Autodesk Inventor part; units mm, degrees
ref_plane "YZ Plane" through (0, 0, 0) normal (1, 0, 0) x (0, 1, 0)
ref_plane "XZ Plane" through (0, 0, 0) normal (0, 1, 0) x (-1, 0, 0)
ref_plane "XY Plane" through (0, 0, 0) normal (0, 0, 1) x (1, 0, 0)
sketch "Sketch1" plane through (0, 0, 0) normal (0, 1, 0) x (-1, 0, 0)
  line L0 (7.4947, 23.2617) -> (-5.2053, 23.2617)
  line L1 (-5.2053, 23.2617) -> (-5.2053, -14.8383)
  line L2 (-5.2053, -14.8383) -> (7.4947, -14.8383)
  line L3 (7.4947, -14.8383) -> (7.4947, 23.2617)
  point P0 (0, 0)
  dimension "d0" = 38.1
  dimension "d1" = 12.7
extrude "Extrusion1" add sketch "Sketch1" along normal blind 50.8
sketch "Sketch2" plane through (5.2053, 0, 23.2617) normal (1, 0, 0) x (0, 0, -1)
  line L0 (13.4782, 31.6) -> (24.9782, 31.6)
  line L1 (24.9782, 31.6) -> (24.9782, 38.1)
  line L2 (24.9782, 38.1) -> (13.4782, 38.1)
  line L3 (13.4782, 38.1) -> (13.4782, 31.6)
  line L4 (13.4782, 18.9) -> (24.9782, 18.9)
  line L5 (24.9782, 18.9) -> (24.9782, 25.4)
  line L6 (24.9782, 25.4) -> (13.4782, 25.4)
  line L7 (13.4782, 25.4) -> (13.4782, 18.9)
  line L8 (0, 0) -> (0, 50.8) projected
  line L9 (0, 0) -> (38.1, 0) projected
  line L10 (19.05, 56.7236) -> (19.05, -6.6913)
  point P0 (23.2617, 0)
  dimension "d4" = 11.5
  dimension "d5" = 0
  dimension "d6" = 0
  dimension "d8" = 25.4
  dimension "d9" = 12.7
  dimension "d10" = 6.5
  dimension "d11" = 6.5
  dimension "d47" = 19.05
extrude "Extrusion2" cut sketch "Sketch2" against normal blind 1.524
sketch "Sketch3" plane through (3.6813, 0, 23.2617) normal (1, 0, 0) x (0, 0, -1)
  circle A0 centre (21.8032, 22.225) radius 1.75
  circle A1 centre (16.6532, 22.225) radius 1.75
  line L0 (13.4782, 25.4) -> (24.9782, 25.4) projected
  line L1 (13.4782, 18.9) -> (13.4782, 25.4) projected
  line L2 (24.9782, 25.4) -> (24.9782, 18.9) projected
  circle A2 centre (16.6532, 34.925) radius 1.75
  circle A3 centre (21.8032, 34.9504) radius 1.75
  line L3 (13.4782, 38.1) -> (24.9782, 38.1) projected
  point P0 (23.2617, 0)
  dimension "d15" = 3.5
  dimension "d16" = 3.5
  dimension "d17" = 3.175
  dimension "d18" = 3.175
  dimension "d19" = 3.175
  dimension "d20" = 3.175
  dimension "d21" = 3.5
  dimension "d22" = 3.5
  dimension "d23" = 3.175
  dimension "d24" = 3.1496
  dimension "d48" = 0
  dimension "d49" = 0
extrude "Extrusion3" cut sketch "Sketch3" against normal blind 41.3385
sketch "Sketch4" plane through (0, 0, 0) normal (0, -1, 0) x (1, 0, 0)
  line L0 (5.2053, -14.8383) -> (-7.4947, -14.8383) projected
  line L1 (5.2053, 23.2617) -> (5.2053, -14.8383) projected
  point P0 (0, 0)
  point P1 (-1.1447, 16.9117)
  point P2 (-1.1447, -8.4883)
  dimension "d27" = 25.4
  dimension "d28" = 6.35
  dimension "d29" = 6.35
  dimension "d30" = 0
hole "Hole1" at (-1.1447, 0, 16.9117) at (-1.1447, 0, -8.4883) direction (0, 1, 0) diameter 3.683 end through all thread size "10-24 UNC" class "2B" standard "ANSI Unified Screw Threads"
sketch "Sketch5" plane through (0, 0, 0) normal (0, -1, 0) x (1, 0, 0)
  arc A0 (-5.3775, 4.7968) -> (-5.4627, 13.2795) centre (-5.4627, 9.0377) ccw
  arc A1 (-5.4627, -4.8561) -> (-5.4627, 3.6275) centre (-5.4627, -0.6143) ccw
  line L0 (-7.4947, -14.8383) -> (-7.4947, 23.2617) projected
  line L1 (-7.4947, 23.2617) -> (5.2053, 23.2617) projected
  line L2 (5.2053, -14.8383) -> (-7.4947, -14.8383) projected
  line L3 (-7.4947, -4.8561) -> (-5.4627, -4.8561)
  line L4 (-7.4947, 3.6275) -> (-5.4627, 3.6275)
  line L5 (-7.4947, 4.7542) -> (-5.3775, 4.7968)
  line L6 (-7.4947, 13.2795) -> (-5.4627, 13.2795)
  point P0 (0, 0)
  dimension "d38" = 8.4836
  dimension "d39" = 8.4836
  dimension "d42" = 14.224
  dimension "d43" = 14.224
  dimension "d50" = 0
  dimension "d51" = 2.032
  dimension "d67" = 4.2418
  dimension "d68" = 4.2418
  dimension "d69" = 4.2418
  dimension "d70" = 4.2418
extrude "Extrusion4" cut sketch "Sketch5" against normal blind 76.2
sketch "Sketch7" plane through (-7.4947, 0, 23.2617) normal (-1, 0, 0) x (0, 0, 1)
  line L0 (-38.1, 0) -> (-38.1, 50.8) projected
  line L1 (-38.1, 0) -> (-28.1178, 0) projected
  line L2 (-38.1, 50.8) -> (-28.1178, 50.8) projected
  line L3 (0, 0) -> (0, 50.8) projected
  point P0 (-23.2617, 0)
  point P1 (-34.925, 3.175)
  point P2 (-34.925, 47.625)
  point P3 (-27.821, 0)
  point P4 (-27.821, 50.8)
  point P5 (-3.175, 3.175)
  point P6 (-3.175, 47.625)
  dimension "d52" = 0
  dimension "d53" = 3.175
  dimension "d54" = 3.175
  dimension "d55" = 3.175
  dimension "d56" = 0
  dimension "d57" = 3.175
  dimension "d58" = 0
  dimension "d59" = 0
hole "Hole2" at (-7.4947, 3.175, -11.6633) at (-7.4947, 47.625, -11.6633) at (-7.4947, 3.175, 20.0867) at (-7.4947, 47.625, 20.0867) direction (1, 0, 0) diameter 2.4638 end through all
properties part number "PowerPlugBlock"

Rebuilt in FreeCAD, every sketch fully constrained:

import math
import FreeCAD as App
import Part
import Sketcher
from FreeCAD import Vector
Q = App.Units.Quantity

doc = App.newDocument("Part")
params = doc.addObject("Spreadsheet::Sheet", "Params")
for row, (alias, value) in enumerate([
    ("sketch1_width", "0.5 in"),
    ("sketch1_height", "1.5 in"),
    ("pad1_length", "2 in"),
    ("pocket1_length", "0.06 in"),
    ("pocket2_length", "1.6275 in"),
    ("sketch4_diameter", "0.145 in"),
    ("hole_diameter", "0.145 in"),
    ("sketch5_radius", "0.167 in"),
    ("sketch5_width", "0.08 in"),
    ("pocket3_length", "3 in"),
    ("sketch6_diameter", "0.097 in"),
    ("hole2_diameter", "0.097 in"),
], start=1):
    params.set(f"A{row}", alias)
    params.set(f"B{row}", "=" + value)
    params.setAlias(f"B{row}", alias)

body = doc.addObject("PartDesign::Body", "Body")

sketch1 = body.newObject("Sketcher::SketchObject", "Sketch")
sketch1.AttachmentSupport = (doc.getObject("XZ_Plane"), [""])
sketch1.MapMode = "FlatFace"
sketch1.addGeometry([
    Part.LineSegment(Vector(-7, -15, 0), Vector(-7, 23, 0)),
    Part.LineSegment(Vector(-7, 23, 0), Vector(5, 23, 0)),
    Part.LineSegment(Vector(5, 23, 0), Vector(5, -15, 0)),
    Part.LineSegment(Vector(5, -15, 0), Vector(-7, -15, 0)),
], False)
sketch1.addConstraint([
    Sketcher.Constraint("Coincident", 0, 2, 1, 1),
    Sketcher.Constraint("Coincident", 1, 2, 2, 1),
    Sketcher.Constraint("Coincident", 2, 2, 3, 1),
    Sketcher.Constraint("Coincident", 3, 2, 0, 1),
    Sketcher.Constraint("Vertical", 0),
    Sketcher.Constraint("Horizontal", 1),
    Sketcher.Constraint("Vertical", 2),
    Sketcher.Constraint("Horizontal", 3),
    Sketcher.Constraint("DistanceX", 1, 1, 1, 2, Q("0.5 in")),
    Sketcher.Constraint("DistanceY", 0, 1, 0, 2, Q("1.5 in")),
    Sketcher.Constraint("DistanceX", 0, 2, -1, 1, 7.4947),
    Sketcher.Constraint("DistanceY", -1, 1, 0, 2, 23.2617),
])
sketch1.setExpression("Constraints[8]", "Params.sketch1_width")
sketch1.setExpression("Constraints[9]", "Params.sketch1_height")
pad1 = body.newObject("PartDesign::Pad", "Pad")
pad1.Profile = sketch1
pad1.setExpression("Length", "Params.pad1_length")
pad1.Reversed = True

sketch2 = body.newObject("Sketcher::SketchObject", "Sketch001")
sketch2.AttachmentSupport = (doc.getObject("YZ_Plane"), [""])
sketch2.MapMode = "FlatFace"
sketch2.AttachmentOffset = App.Placement(Vector(0, 0, 5.2053), App.Rotation())
sketch2.addGeometry([
    Part.LineSegment(Vector(38, 10, 0), Vector(32, 10, 0)),
    Part.LineSegment(Vector(32, 10, 0), Vector(32, -2, 0)),
    Part.LineSegment(Vector(32, -2, 0), Vector(38, -2, 0)),
    Part.LineSegment(Vector(38, -2, 0), Vector(38, 10, 0)),
    Part.LineSegment(Vector(25, -2, 0), Vector(25, 10, 0)),
    Part.LineSegment(Vector(25, 10, 0), Vector(19, 10, 0)),
    Part.LineSegment(Vector(19, 10, 0), Vector(19, -2, 0)),
    Part.LineSegment(Vector(19, -2, 0), Vector(25, -2, 0)),
], False)
sketch2.addConstraint([
    Sketcher.Constraint("Coincident", 0, 2, 1, 1),
    Sketcher.Constraint("Coincident", 1, 2, 2, 1),
    Sketcher.Constraint("Coincident", 2, 2, 3, 1),
    Sketcher.Constraint("Coincident", 3, 2, 0, 1),
    Sketcher.Constraint("Coincident", 4, 2, 5, 1),
    Sketcher.Constraint("Coincident", 5, 2, 6, 1),
    Sketcher.Constraint("Coincident", 6, 2, 7, 1),
    Sketcher.Constraint("Coincident", 7, 2, 4, 1),
    Sketcher.Constraint("Horizontal", 0),
    Sketcher.Constraint("Vertical", 1),
    Sketcher.Constraint("Horizontal", 2),
    Sketcher.Constraint("Vertical", 3),
    Sketcher.Constraint("Vertical", 4),
    Sketcher.Constraint("Horizontal", 5),
    Sketcher.Constraint("Vertical", 6),
    Sketcher.Constraint("Horizontal", 7),
    Sketcher.Constraint("Horizontal", 3, 2, 4, 2),
    Sketcher.Constraint("Horizontal", 2, 2, 6, 2),
    Sketcher.Constraint("Equal", 2, 5),
    Sketcher.Constraint("DistanceX", -1, 1, 4, 2, Q("1 in")),
    Sketcher.Constraint("DistanceX", 4, 2, 3, 2, Q("0.5 in")),
    Sketcher.Constraint("DistanceX", 0, 2, 0, 1, Q("0.2559 in")),
    Sketcher.Constraint("DistanceY", 1, 2, 1, 1, 11.5),
    Sketcher.Constraint("DistanceY", -1, 1, 0, 2, 9.7835),
])
pocket1 = body.newObject("PartDesign::Pocket", "Pocket")
pocket1.Profile = sketch2
pocket1.setExpression("Length", "Params.pocket1_length")

sketch3 = body.newObject("Sketcher::SketchObject", "Sketch002")
sketch3.AttachmentSupport = (doc.getObject("YZ_Plane"), [""])
sketch3.MapMode = "FlatFace"
sketch3.AttachmentOffset = App.Placement(Vector(0, 0, 3.6813), App.Rotation())
sketch3.addGeometry([
    Part.Circle(Vector(22.2, 1.5, 0), Vector(0, 0, 1), 1.8),
    Part.Circle(Vector(22.2, 6.6, 0), Vector(0, 0, 1), 1.8),
    Part.Circle(Vector(34.9, 6.6, 0), Vector(0, 0, 1), 1.8),
    Part.Circle(Vector(35, 1.5, 0), Vector(0, 0, 1), 1.8),
], False)
sketch3.addConstraint([
    Sketcher.Constraint("Equal", 0, 1),
    Sketcher.Constraint("Equal", 1, 2),
    Sketcher.Constraint("Equal", 2, 3),
    Sketcher.Constraint("Horizontal", 1, 3, 2, 3),
    Sketcher.Constraint("Horizontal", 0, 3, 3, 3),
    Sketcher.Constraint("Vertical", 0, 3, 1, 3),
    Sketcher.Constraint("Diameter", 0, Q("0.1378 in")),
    Sketcher.Constraint("DistanceX", 1, 3, 2, 3, Q("0.5 in")),
    Sketcher.Constraint("DistanceX", -1, 1, 0, 3, Q("0.875 in")),
    Sketcher.Constraint("DistanceX", -1, 1, 3, 3, Q("1.376 in")),
    Sketcher.Constraint("DistanceY", -1, 1, 0, 3, 1.4585),
    Sketcher.Constraint("DistanceY", -1, 1, 1, 3, 6.6085),
])
pocket2 = body.newObject("PartDesign::Pocket", "Pocket001")
pocket2.Profile = sketch3
pocket2.setExpression("Length", "Params.pocket2_length")

sketch4 = body.newObject("Sketcher::SketchObject", "Sketch003")
sketch4.AttachmentSupport = (doc.getObject("XZ_Plane"), [""])
sketch4.MapMode = "FlatFace"
sketch4.addGeometry([
    Part.Circle(Vector(-1.1, 16.9, 0), Vector(0, 0, 1), 1.8),
    Part.Circle(Vector(-1.1, -8.5, 0), Vector(0, 0, 1), 1.8),
], False)
sketch4.addConstraint([
    Sketcher.Constraint("Equal", 0, 1),
    Sketcher.Constraint("Vertical", 0, 3, 1, 3),
    Sketcher.Constraint("Diameter", 0, Q("0.145 in")),
    Sketcher.Constraint("DistanceY", 1, 3, 0, 3, Q("1 in")),
    Sketcher.Constraint("DistanceX", 0, 3, -1, 1, 1.1447),
    Sketcher.Constraint("DistanceY", -1, 1, 0, 3, 16.9117),
])
sketch4.setExpression("Constraints[2]", "Params.sketch4_diameter")
doc.recompute()
hole = body.newObject("PartDesign::Hole", "Hole")
hole.Profile = sketch4
hole.ThreadType = "None"
hole.setExpression("Diameter", "Params.hole_diameter")
hole.DepthType = "ThroughAll"

sketch5 = body.newObject("Sketcher::SketchObject", "Sketch004")
sketch5.AttachmentSupport = (doc.getObject("XZ_Plane"), [""])
sketch5.MapMode = "FlatFace"
sketch5.addGeometry([
    Part.LineSegment(Vector(-7.5, 4.8, 0), Vector(-5.4, 4.8, 0)),
    Part.ArcOfCircle(Part.Circle(Vector(-5.5, 9, 0), Vector(0, 0, 1), 4.2), math.radians(-89), math.radians(90)),
    Part.LineSegment(Vector(-5.5, 13.3, 0), Vector(-7.5, 13.3, 0)),
    Part.LineSegment(Vector(-7.5, 13.3, 0), Vector(-7.5, 4.8, 0)),
    Part.LineSegment(Vector(-5.5, 3.6, 0), Vector(-7.5, 3.6, 0)),
    Part.LineSegment(Vector(-7.5, 3.6, 0), Vector(-7.5, -4.9, 0)),
    Part.LineSegment(Vector(-7.5, -4.9, 0), Vector(-5.5, -4.9, 0)),
    Part.ArcOfCircle(Part.Circle(Vector(-5.5, -0.6, 0), Vector(0, 0, 1), 4.2), math.radians(-90), math.radians(90)),
], False)
sketch5.addConstraint([
    Sketcher.Constraint("Tangent", 0, 2, 1, 1),
    Sketcher.Constraint("Tangent", 1, 2, 2, 1),
    Sketcher.Constraint("Coincident", 2, 2, 3, 1),
    Sketcher.Constraint("Coincident", 3, 2, 0, 1),
    Sketcher.Constraint("Coincident", 4, 2, 5, 1),
    Sketcher.Constraint("Coincident", 5, 2, 6, 1),
    Sketcher.Constraint("Tangent", 6, 2, 7, 1),
    Sketcher.Constraint("Tangent", 7, 2, 4, 1),
    Sketcher.Constraint("Horizontal", 2),
    Sketcher.Constraint("Vertical", 3),
    Sketcher.Constraint("Horizontal", 4),
    Sketcher.Constraint("Vertical", 5),
    Sketcher.Constraint("Horizontal", 6),
    Sketcher.Constraint("Equal", 1, 7),
    Sketcher.Constraint("Vertical", 1, 3, 7, 3),
    Sketcher.Constraint("Vertical", 3, 2, 4, 2),
    Sketcher.Constraint("Radius", 1, Q("0.167 in")),
    Sketcher.Constraint("DistanceX", 2, 2, 2, 1, Q("0.08 in")),
    Sketcher.Constraint("DistanceY", 7, 3, 1, 3, Q("0.38 in")),
    Sketcher.Constraint("DistanceY", 3, 2, 3, 1, 8.5253),
    Sketcher.Constraint("DistanceX", 1, 3, -1, 1, 5.4627),
    Sketcher.Constraint("DistanceY", -1, 1, 1, 3, 9.0377),
])
sketch5.setExpression("Constraints[16]", "Params.sketch5_radius")
sketch5.setExpression("Constraints[17]", "Params.sketch5_width")
pocket3 = body.newObject("PartDesign::Pocket", "Pocket002")
pocket3.Profile = sketch5
pocket3.setExpression("Length", "Params.pocket3_length")

sketch6 = body.newObject("Sketcher::SketchObject", "Sketch005")
sketch6.AttachmentSupport = (doc.getObject("YZ_Plane"), [""])
sketch6.MapMode = "FlatFace"
sketch6.AttachmentOffset = App.Placement(Vector(0, 0, -7.4947), App.Rotation())
sketch6.addGeometry([
    Part.Circle(Vector(3.2, -11.7, 0), Vector(0, 0, 1), 1.2),
    Part.Circle(Vector(47.6, -11.7, 0), Vector(0, 0, 1), 1.2),
    Part.Circle(Vector(3.2, 20.1, 0), Vector(0, 0, 1), 1.2),
    Part.Circle(Vector(47.6, 20.1, 0), Vector(0, 0, 1), 1.2),
], False)
sketch6.addConstraint([
    Sketcher.Constraint("Equal", 0, 1),
    Sketcher.Constraint("Equal", 1, 2),
    Sketcher.Constraint("Equal", 2, 3),
    Sketcher.Constraint("Horizontal", 0, 3, 1, 3),
    Sketcher.Constraint("Horizontal", 2, 3, 3, 3),
    Sketcher.Constraint("Vertical", 0, 3, 2, 3),
    Sketcher.Constraint("Vertical", 1, 3, 3, 3),
    Sketcher.Constraint("Diameter", 0, Q("0.097 in")),
    Sketcher.Constraint("DistanceX", 0, 3, 1, 3, Q("1.75 in")),
    Sketcher.Constraint("DistanceY", 0, 3, 2, 3, Q("1.25 in")),
    Sketcher.Constraint("DistanceX", -1, 1, 0, 3, Q("0.125 in")),
    Sketcher.Constraint("DistanceY", 0, 3, -1, 1, 11.6633),
])
sketch6.setExpression("Constraints[7]", "Params.sketch6_diameter")
doc.recompute()
hole2 = body.newObject("PartDesign::Hole", "Hole001")
hole2.Profile = sketch6
hole2.ThreadType = "None"
hole2.setExpression("Diameter", "Params.hole2_diameter")
hole2.DepthType = "ThroughAll"
hole2.Reversed = True

doc.recompute()
